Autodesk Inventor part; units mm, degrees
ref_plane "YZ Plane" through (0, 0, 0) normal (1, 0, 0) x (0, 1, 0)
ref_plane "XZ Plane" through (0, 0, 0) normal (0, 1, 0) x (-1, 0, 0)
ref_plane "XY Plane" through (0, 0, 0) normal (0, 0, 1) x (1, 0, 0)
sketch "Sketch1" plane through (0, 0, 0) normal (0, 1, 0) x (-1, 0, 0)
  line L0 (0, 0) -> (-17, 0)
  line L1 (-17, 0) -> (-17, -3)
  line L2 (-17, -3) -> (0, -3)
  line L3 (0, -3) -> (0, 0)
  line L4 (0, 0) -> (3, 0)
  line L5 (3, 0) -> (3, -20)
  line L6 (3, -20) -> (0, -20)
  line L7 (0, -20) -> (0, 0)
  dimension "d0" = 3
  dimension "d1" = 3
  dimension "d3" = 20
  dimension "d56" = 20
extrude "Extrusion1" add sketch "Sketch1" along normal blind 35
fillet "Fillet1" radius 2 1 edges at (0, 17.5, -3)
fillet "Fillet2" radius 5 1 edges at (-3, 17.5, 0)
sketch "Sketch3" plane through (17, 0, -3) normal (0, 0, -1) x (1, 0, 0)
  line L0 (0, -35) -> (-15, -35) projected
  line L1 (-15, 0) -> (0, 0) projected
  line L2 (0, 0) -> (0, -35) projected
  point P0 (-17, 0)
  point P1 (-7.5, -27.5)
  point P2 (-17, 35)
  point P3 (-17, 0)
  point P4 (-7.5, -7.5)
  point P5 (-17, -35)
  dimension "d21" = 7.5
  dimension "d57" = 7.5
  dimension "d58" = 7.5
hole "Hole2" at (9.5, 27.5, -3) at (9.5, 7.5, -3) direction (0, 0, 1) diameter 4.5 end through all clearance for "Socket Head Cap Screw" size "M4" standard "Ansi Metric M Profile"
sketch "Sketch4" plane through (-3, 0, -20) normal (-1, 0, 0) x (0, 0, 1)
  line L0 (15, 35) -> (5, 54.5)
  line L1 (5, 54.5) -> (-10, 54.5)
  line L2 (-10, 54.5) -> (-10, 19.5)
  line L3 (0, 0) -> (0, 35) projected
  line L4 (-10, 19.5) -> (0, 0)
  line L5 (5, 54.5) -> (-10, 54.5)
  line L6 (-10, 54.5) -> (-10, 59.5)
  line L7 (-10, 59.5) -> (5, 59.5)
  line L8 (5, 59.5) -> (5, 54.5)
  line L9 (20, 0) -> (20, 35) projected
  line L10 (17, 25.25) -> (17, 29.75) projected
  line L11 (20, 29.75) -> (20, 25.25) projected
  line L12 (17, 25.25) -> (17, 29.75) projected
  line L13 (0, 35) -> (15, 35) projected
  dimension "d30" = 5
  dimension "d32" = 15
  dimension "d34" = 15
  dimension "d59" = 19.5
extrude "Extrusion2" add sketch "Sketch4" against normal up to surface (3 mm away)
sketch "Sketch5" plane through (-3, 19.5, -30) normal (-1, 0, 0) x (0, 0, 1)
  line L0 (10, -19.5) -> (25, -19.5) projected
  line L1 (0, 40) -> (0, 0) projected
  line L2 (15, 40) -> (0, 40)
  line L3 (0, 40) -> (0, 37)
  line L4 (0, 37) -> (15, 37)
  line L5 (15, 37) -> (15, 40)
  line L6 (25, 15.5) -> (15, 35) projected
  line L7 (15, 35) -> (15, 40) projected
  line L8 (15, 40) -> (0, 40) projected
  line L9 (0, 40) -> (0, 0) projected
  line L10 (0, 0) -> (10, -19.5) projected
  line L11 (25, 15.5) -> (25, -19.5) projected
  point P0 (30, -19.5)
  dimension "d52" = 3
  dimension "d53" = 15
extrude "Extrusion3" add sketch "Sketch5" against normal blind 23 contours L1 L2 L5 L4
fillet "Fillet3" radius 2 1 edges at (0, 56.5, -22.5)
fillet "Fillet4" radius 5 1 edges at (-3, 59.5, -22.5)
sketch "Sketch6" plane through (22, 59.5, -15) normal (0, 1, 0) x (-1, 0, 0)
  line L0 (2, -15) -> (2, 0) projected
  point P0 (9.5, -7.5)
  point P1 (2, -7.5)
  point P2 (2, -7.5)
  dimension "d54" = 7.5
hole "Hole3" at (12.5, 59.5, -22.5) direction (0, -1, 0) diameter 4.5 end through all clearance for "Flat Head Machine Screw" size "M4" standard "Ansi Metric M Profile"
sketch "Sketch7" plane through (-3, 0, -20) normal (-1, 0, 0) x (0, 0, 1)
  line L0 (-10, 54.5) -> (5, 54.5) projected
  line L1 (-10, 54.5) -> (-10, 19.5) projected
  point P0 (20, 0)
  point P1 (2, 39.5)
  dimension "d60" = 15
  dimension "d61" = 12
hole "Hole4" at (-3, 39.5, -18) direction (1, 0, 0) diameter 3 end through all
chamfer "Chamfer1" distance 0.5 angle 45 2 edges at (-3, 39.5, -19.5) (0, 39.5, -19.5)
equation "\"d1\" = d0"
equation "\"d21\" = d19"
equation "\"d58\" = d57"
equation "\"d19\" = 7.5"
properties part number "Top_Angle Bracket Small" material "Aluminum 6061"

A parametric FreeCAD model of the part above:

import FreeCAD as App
import Part
import Sketcher
from FreeCAD import Vector


def edges_at(feature, points):
    """Names of the edges that pass closest to the given points."""
    edges = feature.Shape.Edges
    near = lambda p: min(range(len(edges)), key=lambda i: edges[i].distToShape(Part.Vertex(*p))[0])
    return sorted({f"Edge{near(p) + 1}" for p in points})


def add_polygon(sketch, points):
    """Adds a closed chain of lines whose ends are joined by coincident constraints."""
    first, n = sketch.GeometryCount, len(points)
    for a, b in zip(points, points[1:] + points[:1]):
        sketch.addGeometry(Part.LineSegment(App.Vector(*a, 0), App.Vector(*b, 0)), False)
    for i in range(n):
        sketch.addConstraint(Sketcher.Constraint("Coincident", first + i, 2, first + (i + 1) % n, 1))

doc = App.newDocument("Part")
params = doc.addObject("Spreadsheet::Sheet", "Params")
for row, (alias, value) in enumerate([
    ("sketch1_width", "3 mm"),
    ("sketch1_width2", "20 mm"),
    ("pad1_length", "35 mm"),
    ("fillet_radius", "2 mm"),
    ("fillet2_radius", "5 mm"),
    ("sketch2_diameter", "4.5 mm"),
    ("hole_diameter", "4.5 mm"),
    ("sketch3_width", "5 mm"),
    ("sketch3_height", "15 mm"),
    ("sketch3_width2", "40 mm"),
    ("pad2_length", "3 mm"),
    ("sketch4_width", "3 mm"),
    ("sketch4_height", "15 mm"),
    ("pad3_length", "23 mm"),
    ("fillet3_radius", "2 mm"),
    ("fillet4_radius", "5 mm"),
    ("sketch5_diameter", "4.5 mm"),
    ("hole2_diameter", "4.5 mm"),
    ("sketch6_diameter", "3 mm"),
    ("hole3_diameter", "3 mm"),
    ("chamfer_size", "0.5 mm"),
], start=1):
    params.set(f"A{row}", alias)
    params.set(f"B{row}", "=" + value)
    params.setAlias(f"B{row}", alias)

body = doc.addObject("PartDesign::Body", "Body")

sketch1 = body.newObject("Sketcher::SketchObject", "Sketch")
sketch1.AttachmentSupport = (doc.getObject("XZ_Plane"), [""])
sketch1.MapMode = "FlatFace"
add_polygon(sketch1, [(17, -3), (0, -3), (0, -20), (-3, -20), (-3, 0), (17, 0)])
sketch1.addConstraint([
    Sketcher.Constraint("Horizontal", 0),
    Sketcher.Constraint("Vertical", 1),
    Sketcher.Constraint("Horizontal", 2),
    Sketcher.Constraint("Vertical", 3),
    Sketcher.Constraint("Horizontal", 4),
    Sketcher.Constraint("Vertical", 5),
    Sketcher.Constraint("PointOnObject", 0, 2, -2),
    Sketcher.Constraint("PointOnObject", 3, 2, -1),
    Sketcher.Constraint("Equal", 0, 1),
    Sketcher.Constraint("Equal", 4, 3),
    Sketcher.Constraint("DistanceX", 2, 2, 2, 1, 3.0),
    Sketcher.Constraint("DistanceX", 4, 1, 4, 2, 20.0),
])
sketch1.setExpression("Constraints[16]", "Params.sketch1_width")
sketch1.setExpression("Constraints[17]", "Params.sketch1_width2")
pad1 = body.newObject("PartDesign::Pad", "Pad")
pad1.Profile = sketch1
pad1.setExpression("Length", "Params.pad1_length")
pad1.Reversed = True
doc.recompute()

fillet = body.newObject("PartDesign::Fillet", "Fillet")
fillet.Base = (pad1, edges_at(pad1, [(0, 17.5, -3)]))
fillet.setExpression("Radius", "Params.fillet_radius")
doc.recompute()

fillet2 = body.newObject("PartDesign::Fillet", "Fillet001")
fillet2.Base = (fillet, edges_at(fillet, [(-3, 17.5, 0)]))
fillet2.setExpression("Radius", "Params.fillet2_radius")

sketch2 = body.newObject("Sketcher::SketchObject", "Sketch001")
sketch2.AttachmentSupport = (doc.getObject("XY_Plane"), [""])
sketch2.MapMode = "FlatFace"
sketch2.AttachmentOffset = App.Placement(Vector(0, 0, -3), App.Rotation())
sketch2.addGeometry([
    Part.Circle(Vector(9.5, 27.5, 0), Vector(0, 0, 1), 2.2),
    Part.Circle(Vector(9.5, 7.5, 0), Vector(0, 0, 1), 2.2),
], False)
sketch2.addConstraint([
    Sketcher.Constraint("Equal", 0, 1),
    Sketcher.Constraint("Vertical", 0, 3, 1, 3),
    Sketcher.Constraint("Diameter", 0, 4.5),
    Sketcher.Constraint("DistanceY", 1, 3, 0, 3, 20.0),
    Sketcher.Constraint("DistanceX", -1, 1, 0, 3, 9.5),
    Sketcher.Constraint("DistanceY", -1, 1, 0, 3, 27.5),
])
sketch2.setExpression("Constraints[2]", "Params.sketch2_diameter")
doc.recompute()
hole = body.newObject("PartDesign::Hole", "Hole")
hole.Profile = sketch2
hole.ThreadType = "None"
hole.setExpression("Diameter", "Params.hole_diameter")
hole.DepthType = "ThroughAll"
hole.Reversed = True

sketch3 = body.newObject("Sketcher::SketchObject", "Sketch002")
sketch3.AttachmentSupport = (doc.getObject("YZ_Plane"), [""])
sketch3.MapMode = "FlatFace"
sketch3.AttachmentOffset = App.Placement(Vector(0, 0, -3), App.Rotation())
add_polygon(sketch3, [(35, -20), (35, -5), (54, -15), (60, -15), (60, -30), (20, -30), (0, -20)])
sketch3.addConstraint([
    Sketcher.Constraint("Vertical", 0),
    Sketcher.Constraint("Horizontal", 2),
    Sketcher.Constraint("Vertical", 3),
    Sketcher.Constraint("Horizontal", 4),
    Sketcher.Constraint("Horizontal", 6),
    Sketcher.Constraint("PointOnObject", 5, 2, -2),
    Sketcher.Constraint("Parallel", 1, 5),
    Sketcher.Constraint("Equal", 0, 3),
    Sketcher.Constraint("DistanceX", 2, 1, 2, 2, 5.0),
    Sketcher.Constraint("DistanceY", 0, 1, 0, 2, 15.0),
    Sketcher.Constraint("DistanceY", 0, 2, -1, 1, 5.0),
    Sketcher.Constraint("DistanceY", 1, 2, -1, 1, 15.0),
    Sketcher.Constraint("DistanceX", -1, 1, 4, 2, 19.5),
    Sketcher.Constraint("DistanceX", 4, 2, 4, 1, 40.0),
])
sketch3.setExpression("Constraints[15]", "Params.sketch3_width")
sketch3.setExpression("Constraints[16]", "Params.sketch3_height")
sketch3.setExpression("Constraints[20]", "Params.sketch3_width2")
pad2 = body.newObject("PartDesign::Pad", "Pad001")
pad2.Profile = sketch3
pad2.setExpression("Length", "Params.pad2_length")

sketch4 = body.newObject("Sketcher::SketchObject", "Sketch003")
sketch4.AttachmentSupport = (doc.getObject("YZ_Plane"), [""])
sketch4.MapMode = "FlatFace"
sketch4.AttachmentOffset = App.Placement(Vector(0, 0, -3), App.Rotation())
add_polygon(sketch4, [(59.5, -30), (56.5, -30), (56.5, -15), (59.5, -15)])
sketch4.addConstraint([
    Sketcher.Constraint("Horizontal", 0),
    Sketcher.Constraint("Vertical", 1),
    Sketcher.Constraint("Horizontal", 2),
    Sketcher.Constraint("Vertical", 3),
    Sketcher.Constraint("DistanceX", 0, 2, 0, 1, 3.0),
    Sketcher.Constraint("DistanceY", 1, 1, 1, 2, 15.0),
    Sketcher.Constraint("DistanceY", 1, 2, -1, 1, 15.0),
    Sketcher.Constraint("DistanceX", -1, 1, 0, 2, 56.5),
])
sketch4.setExpression("Constraints[8]", "Params.sketch4_width")
sketch4.setExpression("Constraints[9]", "Params.sketch4_height")
pad3 = body.newObject("PartDesign::Pad", "Pad002")
pad3.Profile = sketch4
pad3.setExpression("Length", "Params.pad3_length")
doc.recompute()

fillet3 = body.newObject("PartDesign::Fillet", "Fillet002")
fillet3.Base = (pad3, edges_at(pad3, [(0, 56.5, -22.5)]))
fillet3.setExpression("Radius", "Params.fillet3_radius")
doc.recompute()

fillet4 = body.newObject("PartDesign::Fillet", "Fillet003")
fillet4.Base = (fillet3, edges_at(fillet3, [(-3, 59.5, -22.5)]))
fillet4.setExpression("Radius", "Params.fillet4_radius")

sketch5 = body.newObject("Sketcher::SketchObject", "Sketch004")
sketch5.AttachmentSupport = (doc.getObject("XZ_Plane"), [""])
sketch5.MapMode = "FlatFace"
sketch5.AttachmentOffset = App.Placement(Vector(0, 0, -59.5), App.Rotation())
sketch5.addGeometry(Part.Circle(Vector(12.5, -22.5, 0), Vector(0, 0, 1), 2.2), False)
sketch5.addConstraint([
    Sketcher.Constraint("Diameter", 0, 4.5),
    Sketcher.Constraint("DistanceX", -1, 1, 0, 3, 12.5),
    Sketcher.Constraint("DistanceY", 0, 3, -1, 1, 22.5),
])
sketch5.setExpression("Constraints[0]", "Params.sketch5_diameter")
doc.recompute()
hole2 = body.newObject("PartDesign::Hole", "Hole001")
hole2.Profile = sketch5
hole2.ThreadType = "None"
hole2.setExpression("Diameter", "Params.hole2_diameter")
hole2.DepthType = "ThroughAll"
hole2.Reversed = True

sketch6 = body.newObject("Sketcher::SketchObject", "Sketch005")
sketch6.AttachmentSupport = (doc.getObject("YZ_Plane"), [""])
sketch6.MapMode = "FlatFace"
sketch6.AttachmentOffset = App.Placement(Vector(0, 0, -3), App.Rotation())
sketch6.addGeometry(Part.Circle(Vector(39.5, -18, 0), Vector(0, 0, 1), 1.5), False)
sketch6.addConstraint([
    Sketcher.Constraint("Diameter", 0, 3.0),
    Sketcher.Constraint("DistanceY", 0, 3, -1, 1, 18.0),
    Sketcher.Constraint("DistanceX", -1, 1, 0, 3, 39.5),
])
sketch6.setExpression("Constraints[0]", "Params.sketch6_diameter")
doc.recompute()
hole3 = body.newObject("PartDesign::Hole", "Hole002")
hole3.Profile = sketch6
hole3.ThreadType = "None"
hole3.setExpression("Diameter", "Params.hole3_diameter")
hole3.DepthType = "ThroughAll"
hole3.Reversed = True
doc.recompute()

chamfer = body.newObject("PartDesign::Chamfer", "Chamfer")
chamfer.Base = (hole3, edges_at(hole3, [(-3, 39.5, -19.5), (0, 39.5, -19.5)]))
chamfer.setExpression("Size", "Params.chamfer_size")

doc.recompute()
